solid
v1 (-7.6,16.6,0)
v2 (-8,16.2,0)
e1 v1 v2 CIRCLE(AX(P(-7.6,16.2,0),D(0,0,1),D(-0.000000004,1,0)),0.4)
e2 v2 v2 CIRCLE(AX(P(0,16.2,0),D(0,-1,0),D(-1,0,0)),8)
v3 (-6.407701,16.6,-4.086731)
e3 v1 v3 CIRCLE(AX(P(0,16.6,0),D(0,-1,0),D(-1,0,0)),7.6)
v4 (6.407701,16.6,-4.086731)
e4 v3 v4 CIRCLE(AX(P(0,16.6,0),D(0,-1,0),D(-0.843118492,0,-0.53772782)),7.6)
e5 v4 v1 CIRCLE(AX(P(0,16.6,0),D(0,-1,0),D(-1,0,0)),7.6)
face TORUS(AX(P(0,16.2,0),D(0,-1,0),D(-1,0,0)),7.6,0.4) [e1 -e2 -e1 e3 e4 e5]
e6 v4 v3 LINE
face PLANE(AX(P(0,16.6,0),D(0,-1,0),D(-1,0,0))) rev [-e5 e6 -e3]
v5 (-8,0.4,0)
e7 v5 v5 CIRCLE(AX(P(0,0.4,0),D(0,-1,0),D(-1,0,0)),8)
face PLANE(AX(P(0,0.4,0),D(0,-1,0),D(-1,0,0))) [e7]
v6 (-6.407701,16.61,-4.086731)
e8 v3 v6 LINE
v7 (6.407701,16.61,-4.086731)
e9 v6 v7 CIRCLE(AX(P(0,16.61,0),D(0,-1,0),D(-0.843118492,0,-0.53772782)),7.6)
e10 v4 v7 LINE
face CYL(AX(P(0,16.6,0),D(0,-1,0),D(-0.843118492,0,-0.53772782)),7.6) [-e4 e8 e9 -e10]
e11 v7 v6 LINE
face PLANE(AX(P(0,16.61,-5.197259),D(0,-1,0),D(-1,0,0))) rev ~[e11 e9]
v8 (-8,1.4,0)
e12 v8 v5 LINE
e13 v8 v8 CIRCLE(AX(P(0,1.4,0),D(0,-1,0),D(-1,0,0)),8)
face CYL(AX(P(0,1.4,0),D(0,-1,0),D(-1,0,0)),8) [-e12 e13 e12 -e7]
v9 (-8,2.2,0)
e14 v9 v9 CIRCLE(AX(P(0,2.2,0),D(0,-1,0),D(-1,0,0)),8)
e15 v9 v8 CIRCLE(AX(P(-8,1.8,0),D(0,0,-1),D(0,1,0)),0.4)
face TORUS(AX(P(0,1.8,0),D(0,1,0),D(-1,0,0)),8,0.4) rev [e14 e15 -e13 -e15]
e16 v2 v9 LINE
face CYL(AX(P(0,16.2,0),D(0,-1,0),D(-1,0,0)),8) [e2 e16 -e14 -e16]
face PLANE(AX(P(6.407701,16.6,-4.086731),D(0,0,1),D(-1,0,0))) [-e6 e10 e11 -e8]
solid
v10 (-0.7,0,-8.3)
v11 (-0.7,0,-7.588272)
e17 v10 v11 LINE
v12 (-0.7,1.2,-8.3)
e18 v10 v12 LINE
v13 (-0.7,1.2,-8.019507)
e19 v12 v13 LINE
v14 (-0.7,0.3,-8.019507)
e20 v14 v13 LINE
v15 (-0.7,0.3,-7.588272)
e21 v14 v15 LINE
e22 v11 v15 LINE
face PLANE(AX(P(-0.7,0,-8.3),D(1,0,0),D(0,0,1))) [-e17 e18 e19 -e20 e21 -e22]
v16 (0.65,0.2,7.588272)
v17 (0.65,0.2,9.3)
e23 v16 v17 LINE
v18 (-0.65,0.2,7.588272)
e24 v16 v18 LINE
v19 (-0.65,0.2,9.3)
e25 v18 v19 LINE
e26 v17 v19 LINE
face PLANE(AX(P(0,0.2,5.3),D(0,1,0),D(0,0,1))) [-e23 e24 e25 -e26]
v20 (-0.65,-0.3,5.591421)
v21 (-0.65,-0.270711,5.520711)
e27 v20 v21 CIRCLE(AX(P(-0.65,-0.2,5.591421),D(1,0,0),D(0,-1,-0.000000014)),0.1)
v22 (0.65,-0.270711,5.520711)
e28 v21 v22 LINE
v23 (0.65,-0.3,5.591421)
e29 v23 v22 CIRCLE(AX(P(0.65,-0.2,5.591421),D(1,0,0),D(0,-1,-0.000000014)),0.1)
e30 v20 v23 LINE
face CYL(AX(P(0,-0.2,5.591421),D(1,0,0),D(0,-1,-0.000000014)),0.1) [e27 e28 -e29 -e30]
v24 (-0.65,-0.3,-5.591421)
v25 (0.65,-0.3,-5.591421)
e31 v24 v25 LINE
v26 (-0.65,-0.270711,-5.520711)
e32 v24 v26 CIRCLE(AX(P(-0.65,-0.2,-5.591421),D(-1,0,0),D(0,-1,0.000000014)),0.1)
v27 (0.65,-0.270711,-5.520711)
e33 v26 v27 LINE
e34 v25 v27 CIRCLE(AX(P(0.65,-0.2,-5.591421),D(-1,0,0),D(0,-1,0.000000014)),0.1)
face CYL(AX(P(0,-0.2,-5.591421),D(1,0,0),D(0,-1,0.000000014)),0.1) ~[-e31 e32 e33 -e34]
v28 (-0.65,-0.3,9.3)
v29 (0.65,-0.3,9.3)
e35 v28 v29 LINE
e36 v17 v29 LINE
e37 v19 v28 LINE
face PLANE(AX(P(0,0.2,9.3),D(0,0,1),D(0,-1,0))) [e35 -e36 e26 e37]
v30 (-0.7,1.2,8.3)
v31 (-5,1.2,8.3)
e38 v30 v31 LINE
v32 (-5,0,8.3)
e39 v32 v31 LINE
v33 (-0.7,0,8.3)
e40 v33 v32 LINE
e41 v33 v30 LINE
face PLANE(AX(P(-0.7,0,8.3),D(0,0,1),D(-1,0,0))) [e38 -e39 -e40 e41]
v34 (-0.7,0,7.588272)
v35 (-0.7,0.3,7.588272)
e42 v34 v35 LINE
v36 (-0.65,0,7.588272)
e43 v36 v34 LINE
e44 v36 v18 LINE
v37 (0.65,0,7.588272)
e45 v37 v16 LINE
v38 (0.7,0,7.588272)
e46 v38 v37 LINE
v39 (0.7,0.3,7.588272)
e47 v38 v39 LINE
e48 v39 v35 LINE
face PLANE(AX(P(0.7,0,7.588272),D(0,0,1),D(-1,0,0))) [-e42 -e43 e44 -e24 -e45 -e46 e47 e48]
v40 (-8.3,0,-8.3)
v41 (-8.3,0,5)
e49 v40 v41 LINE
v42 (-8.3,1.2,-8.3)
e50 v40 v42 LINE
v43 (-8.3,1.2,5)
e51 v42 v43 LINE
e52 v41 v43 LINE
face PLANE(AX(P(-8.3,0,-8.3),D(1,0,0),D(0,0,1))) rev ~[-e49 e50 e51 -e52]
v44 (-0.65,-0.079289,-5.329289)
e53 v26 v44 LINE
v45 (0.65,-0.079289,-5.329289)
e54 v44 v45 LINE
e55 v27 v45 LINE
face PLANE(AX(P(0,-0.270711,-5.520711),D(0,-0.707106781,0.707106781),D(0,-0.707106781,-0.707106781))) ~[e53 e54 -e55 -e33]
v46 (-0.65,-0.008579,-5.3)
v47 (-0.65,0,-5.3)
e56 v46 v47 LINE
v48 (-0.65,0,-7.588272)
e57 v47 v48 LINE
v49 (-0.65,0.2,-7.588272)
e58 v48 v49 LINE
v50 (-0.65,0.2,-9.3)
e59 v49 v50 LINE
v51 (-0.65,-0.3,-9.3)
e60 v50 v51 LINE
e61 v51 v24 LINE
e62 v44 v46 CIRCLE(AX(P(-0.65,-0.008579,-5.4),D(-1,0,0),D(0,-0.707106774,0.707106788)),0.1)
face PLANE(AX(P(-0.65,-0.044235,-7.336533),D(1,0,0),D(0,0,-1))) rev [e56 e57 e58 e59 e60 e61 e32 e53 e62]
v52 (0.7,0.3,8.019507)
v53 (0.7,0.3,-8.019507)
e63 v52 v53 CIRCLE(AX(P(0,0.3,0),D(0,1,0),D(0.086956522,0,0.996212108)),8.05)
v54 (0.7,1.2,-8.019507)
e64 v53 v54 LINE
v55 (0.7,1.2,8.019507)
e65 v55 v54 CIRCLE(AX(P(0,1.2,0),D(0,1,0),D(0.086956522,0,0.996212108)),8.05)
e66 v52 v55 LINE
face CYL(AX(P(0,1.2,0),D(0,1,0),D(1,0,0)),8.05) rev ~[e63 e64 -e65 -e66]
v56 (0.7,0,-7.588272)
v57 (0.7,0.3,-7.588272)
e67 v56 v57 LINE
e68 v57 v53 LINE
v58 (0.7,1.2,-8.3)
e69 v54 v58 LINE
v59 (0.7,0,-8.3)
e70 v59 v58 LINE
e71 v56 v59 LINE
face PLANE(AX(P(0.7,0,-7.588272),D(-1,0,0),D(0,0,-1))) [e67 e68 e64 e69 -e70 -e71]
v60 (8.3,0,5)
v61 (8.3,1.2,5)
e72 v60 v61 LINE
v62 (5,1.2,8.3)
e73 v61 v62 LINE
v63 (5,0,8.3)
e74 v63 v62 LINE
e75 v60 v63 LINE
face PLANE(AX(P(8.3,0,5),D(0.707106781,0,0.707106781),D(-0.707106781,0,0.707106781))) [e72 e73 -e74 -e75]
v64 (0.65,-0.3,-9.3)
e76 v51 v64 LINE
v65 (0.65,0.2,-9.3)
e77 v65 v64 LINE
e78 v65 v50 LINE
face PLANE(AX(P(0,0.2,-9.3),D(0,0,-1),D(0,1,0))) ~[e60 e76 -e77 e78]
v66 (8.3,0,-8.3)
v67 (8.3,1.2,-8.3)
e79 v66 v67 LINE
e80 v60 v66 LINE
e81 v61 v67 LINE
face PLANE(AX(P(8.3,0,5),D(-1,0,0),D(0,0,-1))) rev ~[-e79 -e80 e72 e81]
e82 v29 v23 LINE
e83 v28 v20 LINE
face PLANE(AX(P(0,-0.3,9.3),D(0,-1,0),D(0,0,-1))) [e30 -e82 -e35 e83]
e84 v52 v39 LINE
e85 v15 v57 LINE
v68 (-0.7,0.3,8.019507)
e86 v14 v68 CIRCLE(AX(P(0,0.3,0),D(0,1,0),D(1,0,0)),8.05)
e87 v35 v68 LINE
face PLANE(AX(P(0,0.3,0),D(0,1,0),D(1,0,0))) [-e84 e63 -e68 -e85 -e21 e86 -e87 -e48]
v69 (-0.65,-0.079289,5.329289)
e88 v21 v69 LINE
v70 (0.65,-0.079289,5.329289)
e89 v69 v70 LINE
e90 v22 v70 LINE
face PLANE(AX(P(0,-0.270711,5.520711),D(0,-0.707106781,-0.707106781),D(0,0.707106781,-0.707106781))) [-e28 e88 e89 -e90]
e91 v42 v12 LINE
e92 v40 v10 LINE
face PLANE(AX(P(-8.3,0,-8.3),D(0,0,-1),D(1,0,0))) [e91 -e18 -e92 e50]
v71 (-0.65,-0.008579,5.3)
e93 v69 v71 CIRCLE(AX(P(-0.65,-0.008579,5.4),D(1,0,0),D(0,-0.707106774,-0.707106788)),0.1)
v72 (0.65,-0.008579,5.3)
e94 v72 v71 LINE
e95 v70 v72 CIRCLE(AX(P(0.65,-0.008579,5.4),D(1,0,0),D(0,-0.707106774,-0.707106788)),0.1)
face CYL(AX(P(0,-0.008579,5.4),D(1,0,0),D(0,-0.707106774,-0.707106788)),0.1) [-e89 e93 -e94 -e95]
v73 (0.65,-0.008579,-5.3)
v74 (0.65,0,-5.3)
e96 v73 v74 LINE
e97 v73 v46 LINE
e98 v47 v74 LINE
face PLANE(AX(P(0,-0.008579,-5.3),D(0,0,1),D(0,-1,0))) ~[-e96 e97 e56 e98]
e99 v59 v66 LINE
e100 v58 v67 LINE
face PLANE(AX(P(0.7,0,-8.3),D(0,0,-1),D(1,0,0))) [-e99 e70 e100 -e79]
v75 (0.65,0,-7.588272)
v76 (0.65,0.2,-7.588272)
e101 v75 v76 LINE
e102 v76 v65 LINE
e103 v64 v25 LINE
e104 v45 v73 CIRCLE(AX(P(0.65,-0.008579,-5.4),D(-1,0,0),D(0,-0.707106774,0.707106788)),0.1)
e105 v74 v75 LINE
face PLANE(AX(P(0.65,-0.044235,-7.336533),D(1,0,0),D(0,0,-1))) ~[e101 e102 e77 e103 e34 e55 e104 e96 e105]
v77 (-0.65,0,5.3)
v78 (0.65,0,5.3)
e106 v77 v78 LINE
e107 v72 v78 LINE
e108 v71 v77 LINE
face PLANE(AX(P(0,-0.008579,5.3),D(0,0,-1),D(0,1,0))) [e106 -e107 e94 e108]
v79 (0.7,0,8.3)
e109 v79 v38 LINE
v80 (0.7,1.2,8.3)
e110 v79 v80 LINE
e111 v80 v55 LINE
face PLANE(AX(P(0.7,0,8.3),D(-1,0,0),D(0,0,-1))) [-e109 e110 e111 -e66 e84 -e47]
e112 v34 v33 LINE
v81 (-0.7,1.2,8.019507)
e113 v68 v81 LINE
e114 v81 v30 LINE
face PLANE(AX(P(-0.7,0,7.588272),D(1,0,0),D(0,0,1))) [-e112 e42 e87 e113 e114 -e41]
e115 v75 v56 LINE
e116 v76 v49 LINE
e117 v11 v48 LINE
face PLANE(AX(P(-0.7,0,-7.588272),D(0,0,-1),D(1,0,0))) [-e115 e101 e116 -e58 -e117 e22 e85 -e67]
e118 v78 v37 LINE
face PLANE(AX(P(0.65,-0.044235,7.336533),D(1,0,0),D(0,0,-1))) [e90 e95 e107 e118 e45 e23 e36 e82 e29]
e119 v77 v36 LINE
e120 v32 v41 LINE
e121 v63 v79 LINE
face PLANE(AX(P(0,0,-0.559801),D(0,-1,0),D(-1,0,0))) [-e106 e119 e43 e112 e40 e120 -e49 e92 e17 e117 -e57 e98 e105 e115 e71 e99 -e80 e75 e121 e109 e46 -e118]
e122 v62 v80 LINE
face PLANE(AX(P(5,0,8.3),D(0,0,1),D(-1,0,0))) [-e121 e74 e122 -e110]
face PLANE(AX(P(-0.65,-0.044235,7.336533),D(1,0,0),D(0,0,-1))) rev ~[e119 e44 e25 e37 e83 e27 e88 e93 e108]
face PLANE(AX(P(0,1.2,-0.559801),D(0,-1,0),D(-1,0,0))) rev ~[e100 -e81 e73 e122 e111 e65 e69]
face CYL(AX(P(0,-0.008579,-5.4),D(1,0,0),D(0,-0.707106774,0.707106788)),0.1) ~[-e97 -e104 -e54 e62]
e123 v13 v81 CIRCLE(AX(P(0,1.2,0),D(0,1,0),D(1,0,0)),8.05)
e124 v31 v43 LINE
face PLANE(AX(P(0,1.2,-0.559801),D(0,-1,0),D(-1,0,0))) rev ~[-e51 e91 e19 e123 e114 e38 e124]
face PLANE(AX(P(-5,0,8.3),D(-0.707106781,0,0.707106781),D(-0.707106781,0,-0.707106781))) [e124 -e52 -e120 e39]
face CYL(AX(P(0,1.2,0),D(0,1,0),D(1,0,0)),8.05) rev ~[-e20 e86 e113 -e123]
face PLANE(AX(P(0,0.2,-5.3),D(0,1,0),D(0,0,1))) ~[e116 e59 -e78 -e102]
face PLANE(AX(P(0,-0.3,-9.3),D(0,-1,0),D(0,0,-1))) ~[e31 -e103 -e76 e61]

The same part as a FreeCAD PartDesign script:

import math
import FreeCAD as App
import Part
import Sketcher
from FreeCAD import Vector
Q = App.Units.Quantity

doc = App.newDocument("Part")
params = doc.addObject("Spreadsheet::Sheet", "Params")
for row, (alias, value) in enumerate([
    ("sketch1_width", "7.6 mm"),
    ("sketch1_width2", "4.3 mm"),
    ("sketch1_width3", "1.4 mm"),
    ("sketch1_height", "13.3 mm"),
    ("pad1_length", "1.2 mm"),
    ("sketch2_diameter", "16.1 mm"),
    ("pocket1_length", "0.9 mm"),
    ("sketch3_radius", "0.1 mm"),
    ("sketch3_height", "4 mm"),
    ("sketch3_width", "0.5 mm"),
    ("pad2_length", "1.3 mm"),
    ("sketch4_radius", "0.4 mm"),
    ("sketch4_width", "8 mm"),
    ("sketch4_height", "14 mm"),
    ("sketch4_height2", "1 mm"),
    ("revolution_angle", "360 deg"),
    ("sketch5_radius", "7.6 mm"),
    ("pad3_length", "0.01 mm"),
], start=1):
    params.set(f"A{row}", alias)
    params.set(f"B{row}", "=" + value)
    params.setAlias(f"B{row}", alias)

body = doc.addObject("PartDesign::Body", "Body")

# Sketch on XZ plane
sketch1 = body.newObject("Sketcher::SketchObject", "Sketch")
sketch1.AttachmentSupport = (doc.getObject("XZ_Plane"), [""])
sketch1.MapMode = "FlatFace"
sketch1.addGeometry([
    Part.LineSegment(Vector(-0.7, -8.3, 0), Vector(-8.3, -8.3, 0)),  # 0
    Part.LineSegment(Vector(-8.3, -8.3, 0), Vector(-8.3, 5, 0)),  # 1
    Part.LineSegment(Vector(-8.3, 5, 0), Vector(-5, 8.3, 0)),  # 2
    Part.LineSegment(Vector(-5, 8.3, 0), Vector(-0.7, 8.3, 0)),  # 3
    Part.LineSegment(Vector(-0.7, 8.3, 0), Vector(-0.7, 7.6, 0)),  # 4
    Part.LineSegment(Vector(-0.7, 7.6, 0), Vector(0.7, 7.6, 0)),  # 5
    Part.LineSegment(Vector(0.7, 7.6, 0), Vector(0.7, 8.3, 0)),  # 6
    Part.LineSegment(Vector(0.7, 8.3, 0), Vector(5, 8.3, 0)),  # 7
    Part.LineSegment(Vector(5, 8.3, 0), Vector(8.3, 5, 0)),  # 8
    Part.LineSegment(Vector(8.3, 5, 0), Vector(8.3, -8.3, 0)),  # 9
    Part.LineSegment(Vector(8.3, -8.3, 0), Vector(0.7, -8.3, 0)),  # 10
    Part.LineSegment(Vector(0.7, -8.3, 0), Vector(0.7, -7.6, 0)),  # 11
    Part.LineSegment(Vector(0.7, -7.6, 0), Vector(-0.7, -7.6, 0)),  # 12
    Part.LineSegment(Vector(-0.7, -7.6, 0), Vector(-0.7, -8.3, 0)),  # 13
], False)
sketch1.addConstraint([
    Sketcher.Constraint("Coincident", 0, 2, 1, 1),
    Sketcher.Constraint("Coincident", 1, 2, 2, 1),
    Sketcher.Constraint("Coincident", 2, 2, 3, 1),
    Sketcher.Constraint("Coincident", 3, 2, 4, 1),
    Sketcher.Constraint("Coincident", 4, 2, 5, 1),
    Sketcher.Constraint("Coincident", 5, 2, 6, 1),
    Sketcher.Constraint("Coincident", 6, 2, 7, 1),
    Sketcher.Constraint("Coincident", 7, 2, 8, 1),
    Sketcher.Constraint("Coincident", 8, 2, 9, 1),
    Sketcher.Constraint("Coincident", 9, 2, 10, 1),
    Sketcher.Constraint("Coincident", 10, 2, 11, 1),
    Sketcher.Constraint("Coincident", 11, 2, 12, 1),
    Sketcher.Constraint("Coincident", 12, 2, 13, 1),
    Sketcher.Constraint("Coincident", 13, 2, 0, 1),
    Sketcher.Constraint("Horizontal", 0),
    Sketcher.Constraint("Vertical", 1),
    Sketcher.Constraint("Horizontal", 3),
    Sketcher.Constraint("Vertical", 4),
    Sketcher.Constraint("Horizontal", 5),
    Sketcher.Constraint("Vertical", 6),
    Sketcher.Constraint("Horizontal", 7),
    Sketcher.Constraint("Vertical", 9),
    Sketcher.Constraint("Horizontal", 10),
    Sketcher.Constraint("Vertical", 11),
    Sketcher.Constraint("Horizontal", 12),
    Sketcher.Constraint("Vertical", 13),
    Sketcher.Constraint("Symmetric", 3, 2, 10, 2, -1, 1),
    Sketcher.Constraint("Symmetric", 5, 2, 12, 2, -1, 1),
    Sketcher.Constraint("Symmetric", 3, 2, 6, 2, -2),
    Sketcher.Constraint("Symmetric", 1, 2, 8, 2, -2),
    Sketcher.Constraint("Perpendicular", 2, 8),
    Sketcher.Constraint("Horizontal", 0, 2, 9, 2),
    Sketcher.Constraint("Equal", 3, 7),
    Sketcher.Constraint("DistanceX", 0, 2, 0, 1, 7.6),
    Sketcher.Constraint("DistanceX", 3, 1, 3, 2, 4.3),
    Sketcher.Constraint("DistanceX", 5, 1, 5, 2, 1.4),
    Sketcher.Constraint("DistanceY", 1, 1, 1, 2, 13.3),
    Sketcher.Constraint("DistanceY", 4, 2, 4, 1, 0.711728),
])
sketch1.setExpression("Constraints[33]", "Params.sketch1_width")
sketch1.setExpression("Constraints[34]", "Params.sketch1_width2")
sketch1.setExpression("Constraints[35]", "Params.sketch1_width3")
sketch1.setExpression("Constraints[36]", "Params.sketch1_height")
pad1 = body.newObject("PartDesign::Pad", "Pad")
pad1.Profile = sketch1
pad1.setExpression("Length", "Params.pad1_length")
pad1.Reversed = True

# Sketch on XZ plane
sketch2 = body.newObject("Sketcher::SketchObject", "Sketch001")
sketch2.AttachmentSupport = (doc.getObject("XZ_Plane"), [""])
sketch2.MapMode = "FlatFace"
sketch2.AttachmentOffset = App.Placement(Vector(0, 0, -1.2), App.Rotation())
sketch2.addGeometry(Part.Circle(Vector(0, 0, 0), Vector(0, 0, 1), 8), False)
sketch2.addConstraint([
    Sketcher.Constraint("Coincident", 0, 3, -1, 1),
    Sketcher.Constraint("Diameter", 0, 16.1),
])
sketch2.setExpression("Constraints[1]", "Params.sketch2_diameter")
pocket1 = body.newObject("PartDesign::Pocket", "Pocket")
pocket1.Profile = sketch2
pocket1.setExpression("Length", "Params.pocket1_length")
pocket1.Reversed = True

# Sketch on YZ plane
sketch3 = body.newObject("Sketcher::SketchObject", "Sketch002")
sketch3.AttachmentSupport = (doc.getObject("YZ_Plane"), [""])
sketch3.MapMode = "FlatFace"
sketch3.addGeometry([
    Part.LineSegment(Vector(0.2, 9.3, 0), Vector(-0.3, 9.3, 0)),  # 0
    Part.LineSegment(Vector(-0.3, 9.3, 0), Vector(-0.3, 5.59, 0)),  # 1
    Part.ArcOfCircle(Part.Circle(Vector(-0.2, 5.59, 0), Vector(0, 0, 1), 0.1), math.radians(-180), math.radians(-135)),  # 2
    Part.LineSegment(Vector(-0.27, 5.52, 0), Vector(-0.08, 5.33, 0)),  # 3
    Part.ArcOfCircle(Part.Circle(Vector(-0.01, 5.4, 0), Vector(0, 0, 1), 0.1), math.radians(-135), math.radians(-90)),  # 4
    Part.LineSegment(Vector(-0.01, 5.3, 0), Vector(0.2, 5.3, 0)),  # 5
    Part.LineSegment(Vector(0.2, 5.3, 0), Vector(0.2, 9.3, 0)),  # 6
], False)
sketch3.addConstraint([
    Sketcher.Constraint("Coincident", 0, 2, 1, 1),
    Sketcher.Constraint("Tangent", 1, 2, 2, 1),
    Sketcher.Constraint("Tangent", 2, 2, 3, 1),
    Sketcher.Constraint("Tangent", 3, 2, 4, 1),
    Sketcher.Constraint("Tangent", 4, 2, 5, 1),
    Sketcher.Constraint("Coincident", 5, 2, 6, 1),
    Sketcher.Constraint("Coincident", 6, 2, 0, 1),
    Sketcher.Constraint("Horizontal", 0),
    Sketcher.Constraint("Vertical", 1),
    Sketcher.Constraint("Horizontal", 5),
    Sketcher.Constraint("Vertical", 6),
    Sketcher.Constraint("Equal", 2, 4),
    Sketcher.Constraint("Radius", 2, 0.1),
    Sketcher.Constraint("DistanceY", 6, 1, 6, 2, 4.0),
    Sketcher.Constraint("Angle", 3, Q("-45 deg")),
    Sketcher.Constraint("DistanceX", 0, 2, 0, 1, 0.5),
    Sketcher.Constraint("DistanceX", 2, 3, -1, 1, 0.2),
    Sketcher.Constraint("DistanceY", -1, 1, 4, 3, 5.4),
    Sketcher.Constraint("DistanceX", 5, 1, 5, 2, 0.208579),
])
sketch3.setExpression("Constraints[12]", "Params.sketch3_radius")
sketch3.setExpression("Constraints[13]", "Params.sketch3_height")
sketch3.setExpression("Constraints[15]", "Params.sketch3_width")
pad2 = body.newObject("PartDesign::Pad", "Pad001")
pad2.Profile = sketch3
pad2.setExpression("Length", "Params.pad2_length")
pad2.Midplane = True
doc.recompute()

mirrored = body.newObject("PartDesign::Mirrored", "Mirrored")
mirrored.Originals = [pad2]
mirrored.MirrorPlane = (doc.getObject("XY_Plane"), [""])
body.Tip = mirrored
body2 = doc.addObject("PartDesign::Body", "Body001")

# Sketch on XY plane
sketch4 = body2.newObject("Sketcher::SketchObject", "Sketch003")
sketch4.AttachmentSupport = (doc.getObject("XY_Plane001"), [""])
sketch4.MapMode = "FlatFace"
sketch4.addGeometry([
    Part.LineSegment(Vector(-8, 16.2, 0), Vector(-8, 2.2, 0)),  # 0
    Part.ArcOfCircle(Part.Circle(Vector(-8, 1.8, 0), Vector(0, 0, 1), 0.4), math.radians(-90), math.radians(90)),  # 1
    Part.LineSegment(Vector(-8, 1.4, 0), Vector(-8, 0.4, 0)),  # 2
    Part.LineSegment(Vector(-8, 0.4, 0), Vector(0, 0.4, 0)),  # 3
    Part.LineSegment(Vector(0, 0.4, 0), Vector(0, 16.6, 0)),  # 4
    Part.LineSegment(Vector(0, 16.6, 0), Vector(-7.6, 16.6, 0)),  # 5
    Part.ArcOfCircle(Part.Circle(Vector(-7.6, 16.2, 0), Vector(0, 0, 1), 0.4), math.radians(90), math.radians(180)),  # 6
], False)
sketch4.addConstraint([
    Sketcher.Constraint("Coincident", 0, 2, 1, 2),
    Sketcher.Constraint("Coincident", 1, 1, 2, 1),
    Sketcher.Constraint("Coincident", 2, 2, 3, 1),
    Sketcher.Constraint("Coincident", 3, 2, 4, 1),
    Sketcher.Constraint("Coincident", 4, 2, 5, 1),
    Sketcher.Constraint("Tangent", 5, 2, 6, 1),
    Sketcher.Constraint("Tangent", 6, 2, 0, 1),
    Sketcher.Constraint("Vertical", 0),
    Sketcher.Constraint("Vertical", 2),
    Sketcher.Constraint("Horizontal", 3),
    Sketcher.Constraint("Vertical", 4),
    Sketcher.Constraint("Horizontal", 5),
    Sketcher.Constraint("Equal", 1, 6),
    Sketcher.Constraint("PointOnObject", 3, 2, -2),
    Sketcher.Constraint("Vertical", 1, 3, 0, 2),
    Sketcher.Constraint("Vertical", 0, 2, 1, 1),
    Sketcher.Constraint("Radius", 1, 0.4),
    Sketcher.Constraint("DistanceX", 3, 1, 3, 2, 8.0),
    Sketcher.Constraint("DistanceY", 0, 2, 0, 1, 14.0),
    Sketcher.Constraint("DistanceY", 2, 2, 2, 1, 1.0),
    Sketcher.Constraint("DistanceY", -1, 1, 1, 3, 1.8),
])
sketch4.setExpression("Constraints[16]", "Params.sketch4_radius")
sketch4.setExpression("Constraints[17]", "Params.sketch4_width")
sketch4.setExpression("Constraints[18]", "Params.sketch4_height")
sketch4.setExpression("Constraints[19]", "Params.sketch4_height2")
revolution = body2.newObject("PartDesign::Revolution", "Revolution")
revolution.Profile = sketch4
revolution.ReferenceAxis = (sketch4, ["V_Axis"])
revolution.setExpression("Angle", "Params.revolution_angle")

# Sketch on XZ plane
sketch5 = body2.newObject("Sketcher::SketchObject", "Sketch004")
sketch5.AttachmentSupport = (doc.getObject("XZ_Plane001"), [""])
sketch5.MapMode = "FlatFace"
sketch5.AttachmentOffset = App.Placement(Vector(0, 0, -16.6), App.Rotation())
sketch5.addGeometry([
    Part.LineSegment(Vector(-6, -4, 0), Vector(6, -4, 0)),
    Part.ArcOfCircle(Part.Circle(Vector(0, 0, 0), Vector(0, 0, 1), 8), math.radians(-147), math.radians(-33)),
], False)
sketch5.addConstraint([
    Sketcher.Constraint("Coincident", 0, 1, 1, 1),
    Sketcher.Constraint("Coincident", 1, 2, 0, 2),
    Sketcher.Constraint("Horizontal", 0),
    Sketcher.Constraint("Coincident", 1, 3, -1, 1),
    Sketcher.Constraint("Radius", 1, 7.6),
    Sketcher.Constraint("DistanceX", 0, 1, 0, 2, 12.815401),
])
sketch5.setExpression("Constraints[4]", "Params.sketch5_radius")
pad3 = body2.newObject("PartDesign::Pad", "Pad002")
pad3.Profile = sketch5
pad3.setExpression("Length", "Params.pad3_length")
pad3.Reversed = True

doc.recompute()
